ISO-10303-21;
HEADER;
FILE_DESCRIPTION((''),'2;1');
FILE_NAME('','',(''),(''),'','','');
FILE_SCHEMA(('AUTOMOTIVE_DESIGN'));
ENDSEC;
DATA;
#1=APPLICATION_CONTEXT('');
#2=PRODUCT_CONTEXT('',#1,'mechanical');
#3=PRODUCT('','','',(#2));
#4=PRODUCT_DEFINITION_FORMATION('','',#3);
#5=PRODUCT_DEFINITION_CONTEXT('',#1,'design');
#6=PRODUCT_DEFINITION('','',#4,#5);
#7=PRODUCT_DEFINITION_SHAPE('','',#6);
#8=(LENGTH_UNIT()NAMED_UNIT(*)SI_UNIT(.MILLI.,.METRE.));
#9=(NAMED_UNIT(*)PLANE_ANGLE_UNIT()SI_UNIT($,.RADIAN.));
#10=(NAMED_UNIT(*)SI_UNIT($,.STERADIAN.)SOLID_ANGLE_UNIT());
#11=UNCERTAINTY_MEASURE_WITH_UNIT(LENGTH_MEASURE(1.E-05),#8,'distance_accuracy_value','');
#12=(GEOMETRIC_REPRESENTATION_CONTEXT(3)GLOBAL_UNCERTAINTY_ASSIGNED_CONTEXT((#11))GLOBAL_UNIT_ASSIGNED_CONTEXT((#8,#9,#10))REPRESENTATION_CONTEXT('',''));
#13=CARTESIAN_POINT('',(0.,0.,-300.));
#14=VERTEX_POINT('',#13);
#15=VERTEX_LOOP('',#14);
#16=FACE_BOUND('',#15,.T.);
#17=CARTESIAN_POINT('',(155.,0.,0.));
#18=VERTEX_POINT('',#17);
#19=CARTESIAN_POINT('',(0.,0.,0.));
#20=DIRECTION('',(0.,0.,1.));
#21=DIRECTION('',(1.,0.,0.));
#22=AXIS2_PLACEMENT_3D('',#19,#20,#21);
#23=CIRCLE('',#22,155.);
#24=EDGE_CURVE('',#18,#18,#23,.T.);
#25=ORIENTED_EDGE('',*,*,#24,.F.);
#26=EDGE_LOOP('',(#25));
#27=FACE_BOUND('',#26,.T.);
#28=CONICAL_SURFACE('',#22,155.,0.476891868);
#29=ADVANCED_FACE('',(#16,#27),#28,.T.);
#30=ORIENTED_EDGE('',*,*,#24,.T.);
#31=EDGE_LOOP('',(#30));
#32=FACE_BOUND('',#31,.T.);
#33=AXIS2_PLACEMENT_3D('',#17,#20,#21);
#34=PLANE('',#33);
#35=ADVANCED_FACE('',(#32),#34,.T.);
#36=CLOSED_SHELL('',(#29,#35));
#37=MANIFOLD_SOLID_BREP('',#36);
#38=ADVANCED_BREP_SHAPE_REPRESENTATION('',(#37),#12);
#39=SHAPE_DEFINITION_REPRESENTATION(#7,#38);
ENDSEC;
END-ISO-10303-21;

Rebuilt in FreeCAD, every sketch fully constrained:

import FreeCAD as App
import Part
import Sketcher

V = App.Vector
Q = App.Units.Quantity


def add_polygon(sketch, points):
    """Adds a closed chain of lines whose ends are joined by coincident constraints."""
    first, n = sketch.GeometryCount, len(points)
    for a, b in zip(points, points[1:] + points[:1]):
        sketch.addGeometry(Part.LineSegment(App.Vector(*a, 0), App.Vector(*b, 0)), False)
    for i in range(n):
        sketch.addConstraint(Sketcher.Constraint("Coincident", first + i, 2, first + (i + 1) % n, 1))

doc = App.newDocument("Part")
params = doc.addObject("Spreadsheet::Sheet", "Params")
for row, (alias, value) in enumerate([
    ("sketch1_width", "155 mm"),
    ("sketch1_height", "300 mm"),
    ("revolution_angle", "360 deg"),
], start=1):
    params.set(f"A{row}", alias)
    params.set(f"B{row}", "=" + value)
    params.setAlias(f"B{row}", alias)

body = doc.addObject("PartDesign::Body", "Body")

# Sketch on XZ plane
sketch1 = body.newObject("Sketcher::SketchObject", "Sketch")
sketch1.AttachmentSupport = (doc.getObject("XZ_Plane"), [""])
sketch1.MapMode = "FlatFace"
add_polygon(sketch1, [(0, -300), (0, 0), (155, 0)])  # lines 0-2
sketch1.addConstraint([
    Sketcher.Constraint("Vertical", 0),
    Sketcher.Constraint("Horizontal", 1),
    Sketcher.Constraint("Coincident", 0, 2, -1, 1),
    Sketcher.Constraint("DistanceX", 1, 1, 1, 2, Q("155 mm")),
    Sketcher.Constraint("DistanceY", 0, 1, 0, 2, Q("300 mm")),
])
sketch1.setExpression("Constraints[6]", "Params.sketch1_width")
sketch1.setExpression("Constraints[7]", "Params.sketch1_height")
revolution = body.newObject("PartDesign::Revolution", "Revolution")
revolution.Profile = sketch1
revolution.ReferenceAxis = (sketch1, ["V_Axis"])
revolution.setExpression("Angle", "Params.revolution_angle")

doc.recompute()
